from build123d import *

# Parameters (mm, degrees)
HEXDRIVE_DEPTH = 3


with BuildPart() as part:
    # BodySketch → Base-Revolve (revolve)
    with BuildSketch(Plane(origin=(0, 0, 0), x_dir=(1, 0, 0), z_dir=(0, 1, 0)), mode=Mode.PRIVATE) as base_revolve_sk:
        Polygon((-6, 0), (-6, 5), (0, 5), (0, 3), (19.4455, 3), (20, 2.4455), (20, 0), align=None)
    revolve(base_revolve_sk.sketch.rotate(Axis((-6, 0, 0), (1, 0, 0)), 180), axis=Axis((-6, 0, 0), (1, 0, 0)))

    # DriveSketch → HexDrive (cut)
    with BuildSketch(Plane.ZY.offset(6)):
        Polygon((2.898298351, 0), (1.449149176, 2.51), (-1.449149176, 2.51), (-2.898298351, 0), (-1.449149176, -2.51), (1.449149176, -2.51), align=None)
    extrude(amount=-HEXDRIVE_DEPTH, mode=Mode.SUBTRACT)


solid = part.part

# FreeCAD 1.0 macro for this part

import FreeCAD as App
import Part
import Sketcher
Q = App.Units.Quantity


def add_polygon(sketch, points):
    """Adds a closed chain of lines whose ends are joined by coincident constraints."""
    first, n = sketch.GeometryCount, len(points)
    for a, b in zip(points, points[1:] + points[:1]):
        sketch.addGeometry(Part.LineSegment(App.Vector(*a, 0), App.Vector(*b, 0)), False)
    for i in range(n):
        sketch.addConstraint(Sketcher.Constraint("Coincident", first + i, 2, first + (i + 1) % n, 1))

doc = App.newDocument("Part")
params = doc.addObject("Spreadsheet::Sheet", "Params")
for row, (alias, value) in enumerate([
    ("sketch1_width", "26 mm"),
    ("sketch1_width2", "6 mm"),
    ("sketch1_height", "5 mm"),
    ("sketch1_height2", "2 mm"),
    ("revolution_angle", "360 deg"),
    ("pocket1_length", "3 mm"),
], start=1):
    params.set(f"A{row}", alias)
    params.set(f"B{row}", "=" + value)
    params.setAlias(f"B{row}", alias)

body = doc.addObject("PartDesign::Body", "Body")

# Sketch on XZ plane
sketch1 = doc.addObject("Sketcher::SketchObject", "Sketch")
body.addObject(sketch1)
sketch1.AttachmentSupport = (doc.XZ_Plane, [""])
sketch1.MapMode = "FlatFace"
add_polygon(sketch1, [(-6, -5), (-6, 0), (20, 0), (20, -2.4), (19.4, -3), (0, -3), (0, -5)])  # lines 0-6
sketch1.addConstraint([
    Sketcher.Constraint("Vertical", 0),
    Sketcher.Constraint("Horizontal", 1),
    Sketcher.Constraint("Vertical", 2),
    Sketcher.Constraint("Horizontal", 4),
    Sketcher.Constraint("Vertical", 5),
    Sketcher.Constraint("Horizontal", 6),
    Sketcher.Constraint("PointOnObject", 0, 2, -1),
    Sketcher.Constraint("PointOnObject", 4, 2, -2),
    Sketcher.Constraint("DistanceX", 1, 1, 1, 2, 26.0),
    Sketcher.Constraint("DistanceX", 6, 2, 6, 1, 6.0),
    Sketcher.Constraint("DistanceY", 0, 1, 0, 2, 5.0),
    Sketcher.Constraint("DistanceY", 5, 2, 5, 1, 2.0),
    Sketcher.Constraint("Angle", 3, Q("-135 deg")),
    Sketcher.Constraint("DistanceX", 4, 2, 4, 1, 19.4455),
])
sketch1.setExpression("Constraints[15]", "Params.sketch1_width")
sketch1.setExpression("Constraints[16]", "Params.sketch1_width2")
sketch1.setExpression("Constraints[17]", "Params.sketch1_height")
sketch1.setExpression("Constraints[18]", "Params.sketch1_height2")
revolution = doc.addObject("PartDesign::Revolution", "Revolution")
body.addObject(revolution)
revolution.Profile = sketch1
revolution.ReferenceAxis = (sketch1, ["H_Axis"])
revolution.setExpression("Angle", "Params.revolution_angle")

# Sketch on YZ plane
sketch2 = doc.addObject("Sketcher::SketchObject", "Sketch001")
body.addObject(sketch2)
sketch2.AttachmentSupport = (doc.YZ_Plane, [""])
sketch2.MapMode = "FlatFace"
sketch2.AttachmentOffset = App.Placement(App.Vector(0, 0, -6), App.Rotation())
add_polygon(sketch2, [(0, 2.9), (2.5, 1.4), (2.5, -1.4), (0, -2.9), (-2.5, -1.4), (-2.5, 1.4)])  # lines 0-5
sketch2.addConstraint([
    Sketcher.Constraint("Vertical", 1),
    Sketcher.Constraint("Vertical", 4),
    Sketcher.Constraint("Symmetric", 0, 2, 3, 2, -1, 1),
    Sketcher.Constraint("Symmetric", 2, 2, 5, 2, -1, 1),
    Sketcher.Constraint("PointOnObject", 2, 2, -2),
    Sketcher.Constraint("Parallel", 2, 5),
    Sketcher.Constraint("Horizontal", 1, 2, 3, 2),
    Sketcher.Constraint("Angle", 0, Q("-30 deg")),
    Sketcher.Constraint("DistanceX", -1, 1, 0, 2, 2.51),
    Sketcher.Constraint("DistanceY", 1, 2, 1, 1, 2.898298),
])
pocket1 = doc.addObject("PartDesign::Pocket", "Pocket")
body.addObject(pocket1)
pocket1.Profile = sketch2
pocket1.setExpression("Length", "Params.pocket1_length")
pocket1.Reversed = True

doc.recompute()
